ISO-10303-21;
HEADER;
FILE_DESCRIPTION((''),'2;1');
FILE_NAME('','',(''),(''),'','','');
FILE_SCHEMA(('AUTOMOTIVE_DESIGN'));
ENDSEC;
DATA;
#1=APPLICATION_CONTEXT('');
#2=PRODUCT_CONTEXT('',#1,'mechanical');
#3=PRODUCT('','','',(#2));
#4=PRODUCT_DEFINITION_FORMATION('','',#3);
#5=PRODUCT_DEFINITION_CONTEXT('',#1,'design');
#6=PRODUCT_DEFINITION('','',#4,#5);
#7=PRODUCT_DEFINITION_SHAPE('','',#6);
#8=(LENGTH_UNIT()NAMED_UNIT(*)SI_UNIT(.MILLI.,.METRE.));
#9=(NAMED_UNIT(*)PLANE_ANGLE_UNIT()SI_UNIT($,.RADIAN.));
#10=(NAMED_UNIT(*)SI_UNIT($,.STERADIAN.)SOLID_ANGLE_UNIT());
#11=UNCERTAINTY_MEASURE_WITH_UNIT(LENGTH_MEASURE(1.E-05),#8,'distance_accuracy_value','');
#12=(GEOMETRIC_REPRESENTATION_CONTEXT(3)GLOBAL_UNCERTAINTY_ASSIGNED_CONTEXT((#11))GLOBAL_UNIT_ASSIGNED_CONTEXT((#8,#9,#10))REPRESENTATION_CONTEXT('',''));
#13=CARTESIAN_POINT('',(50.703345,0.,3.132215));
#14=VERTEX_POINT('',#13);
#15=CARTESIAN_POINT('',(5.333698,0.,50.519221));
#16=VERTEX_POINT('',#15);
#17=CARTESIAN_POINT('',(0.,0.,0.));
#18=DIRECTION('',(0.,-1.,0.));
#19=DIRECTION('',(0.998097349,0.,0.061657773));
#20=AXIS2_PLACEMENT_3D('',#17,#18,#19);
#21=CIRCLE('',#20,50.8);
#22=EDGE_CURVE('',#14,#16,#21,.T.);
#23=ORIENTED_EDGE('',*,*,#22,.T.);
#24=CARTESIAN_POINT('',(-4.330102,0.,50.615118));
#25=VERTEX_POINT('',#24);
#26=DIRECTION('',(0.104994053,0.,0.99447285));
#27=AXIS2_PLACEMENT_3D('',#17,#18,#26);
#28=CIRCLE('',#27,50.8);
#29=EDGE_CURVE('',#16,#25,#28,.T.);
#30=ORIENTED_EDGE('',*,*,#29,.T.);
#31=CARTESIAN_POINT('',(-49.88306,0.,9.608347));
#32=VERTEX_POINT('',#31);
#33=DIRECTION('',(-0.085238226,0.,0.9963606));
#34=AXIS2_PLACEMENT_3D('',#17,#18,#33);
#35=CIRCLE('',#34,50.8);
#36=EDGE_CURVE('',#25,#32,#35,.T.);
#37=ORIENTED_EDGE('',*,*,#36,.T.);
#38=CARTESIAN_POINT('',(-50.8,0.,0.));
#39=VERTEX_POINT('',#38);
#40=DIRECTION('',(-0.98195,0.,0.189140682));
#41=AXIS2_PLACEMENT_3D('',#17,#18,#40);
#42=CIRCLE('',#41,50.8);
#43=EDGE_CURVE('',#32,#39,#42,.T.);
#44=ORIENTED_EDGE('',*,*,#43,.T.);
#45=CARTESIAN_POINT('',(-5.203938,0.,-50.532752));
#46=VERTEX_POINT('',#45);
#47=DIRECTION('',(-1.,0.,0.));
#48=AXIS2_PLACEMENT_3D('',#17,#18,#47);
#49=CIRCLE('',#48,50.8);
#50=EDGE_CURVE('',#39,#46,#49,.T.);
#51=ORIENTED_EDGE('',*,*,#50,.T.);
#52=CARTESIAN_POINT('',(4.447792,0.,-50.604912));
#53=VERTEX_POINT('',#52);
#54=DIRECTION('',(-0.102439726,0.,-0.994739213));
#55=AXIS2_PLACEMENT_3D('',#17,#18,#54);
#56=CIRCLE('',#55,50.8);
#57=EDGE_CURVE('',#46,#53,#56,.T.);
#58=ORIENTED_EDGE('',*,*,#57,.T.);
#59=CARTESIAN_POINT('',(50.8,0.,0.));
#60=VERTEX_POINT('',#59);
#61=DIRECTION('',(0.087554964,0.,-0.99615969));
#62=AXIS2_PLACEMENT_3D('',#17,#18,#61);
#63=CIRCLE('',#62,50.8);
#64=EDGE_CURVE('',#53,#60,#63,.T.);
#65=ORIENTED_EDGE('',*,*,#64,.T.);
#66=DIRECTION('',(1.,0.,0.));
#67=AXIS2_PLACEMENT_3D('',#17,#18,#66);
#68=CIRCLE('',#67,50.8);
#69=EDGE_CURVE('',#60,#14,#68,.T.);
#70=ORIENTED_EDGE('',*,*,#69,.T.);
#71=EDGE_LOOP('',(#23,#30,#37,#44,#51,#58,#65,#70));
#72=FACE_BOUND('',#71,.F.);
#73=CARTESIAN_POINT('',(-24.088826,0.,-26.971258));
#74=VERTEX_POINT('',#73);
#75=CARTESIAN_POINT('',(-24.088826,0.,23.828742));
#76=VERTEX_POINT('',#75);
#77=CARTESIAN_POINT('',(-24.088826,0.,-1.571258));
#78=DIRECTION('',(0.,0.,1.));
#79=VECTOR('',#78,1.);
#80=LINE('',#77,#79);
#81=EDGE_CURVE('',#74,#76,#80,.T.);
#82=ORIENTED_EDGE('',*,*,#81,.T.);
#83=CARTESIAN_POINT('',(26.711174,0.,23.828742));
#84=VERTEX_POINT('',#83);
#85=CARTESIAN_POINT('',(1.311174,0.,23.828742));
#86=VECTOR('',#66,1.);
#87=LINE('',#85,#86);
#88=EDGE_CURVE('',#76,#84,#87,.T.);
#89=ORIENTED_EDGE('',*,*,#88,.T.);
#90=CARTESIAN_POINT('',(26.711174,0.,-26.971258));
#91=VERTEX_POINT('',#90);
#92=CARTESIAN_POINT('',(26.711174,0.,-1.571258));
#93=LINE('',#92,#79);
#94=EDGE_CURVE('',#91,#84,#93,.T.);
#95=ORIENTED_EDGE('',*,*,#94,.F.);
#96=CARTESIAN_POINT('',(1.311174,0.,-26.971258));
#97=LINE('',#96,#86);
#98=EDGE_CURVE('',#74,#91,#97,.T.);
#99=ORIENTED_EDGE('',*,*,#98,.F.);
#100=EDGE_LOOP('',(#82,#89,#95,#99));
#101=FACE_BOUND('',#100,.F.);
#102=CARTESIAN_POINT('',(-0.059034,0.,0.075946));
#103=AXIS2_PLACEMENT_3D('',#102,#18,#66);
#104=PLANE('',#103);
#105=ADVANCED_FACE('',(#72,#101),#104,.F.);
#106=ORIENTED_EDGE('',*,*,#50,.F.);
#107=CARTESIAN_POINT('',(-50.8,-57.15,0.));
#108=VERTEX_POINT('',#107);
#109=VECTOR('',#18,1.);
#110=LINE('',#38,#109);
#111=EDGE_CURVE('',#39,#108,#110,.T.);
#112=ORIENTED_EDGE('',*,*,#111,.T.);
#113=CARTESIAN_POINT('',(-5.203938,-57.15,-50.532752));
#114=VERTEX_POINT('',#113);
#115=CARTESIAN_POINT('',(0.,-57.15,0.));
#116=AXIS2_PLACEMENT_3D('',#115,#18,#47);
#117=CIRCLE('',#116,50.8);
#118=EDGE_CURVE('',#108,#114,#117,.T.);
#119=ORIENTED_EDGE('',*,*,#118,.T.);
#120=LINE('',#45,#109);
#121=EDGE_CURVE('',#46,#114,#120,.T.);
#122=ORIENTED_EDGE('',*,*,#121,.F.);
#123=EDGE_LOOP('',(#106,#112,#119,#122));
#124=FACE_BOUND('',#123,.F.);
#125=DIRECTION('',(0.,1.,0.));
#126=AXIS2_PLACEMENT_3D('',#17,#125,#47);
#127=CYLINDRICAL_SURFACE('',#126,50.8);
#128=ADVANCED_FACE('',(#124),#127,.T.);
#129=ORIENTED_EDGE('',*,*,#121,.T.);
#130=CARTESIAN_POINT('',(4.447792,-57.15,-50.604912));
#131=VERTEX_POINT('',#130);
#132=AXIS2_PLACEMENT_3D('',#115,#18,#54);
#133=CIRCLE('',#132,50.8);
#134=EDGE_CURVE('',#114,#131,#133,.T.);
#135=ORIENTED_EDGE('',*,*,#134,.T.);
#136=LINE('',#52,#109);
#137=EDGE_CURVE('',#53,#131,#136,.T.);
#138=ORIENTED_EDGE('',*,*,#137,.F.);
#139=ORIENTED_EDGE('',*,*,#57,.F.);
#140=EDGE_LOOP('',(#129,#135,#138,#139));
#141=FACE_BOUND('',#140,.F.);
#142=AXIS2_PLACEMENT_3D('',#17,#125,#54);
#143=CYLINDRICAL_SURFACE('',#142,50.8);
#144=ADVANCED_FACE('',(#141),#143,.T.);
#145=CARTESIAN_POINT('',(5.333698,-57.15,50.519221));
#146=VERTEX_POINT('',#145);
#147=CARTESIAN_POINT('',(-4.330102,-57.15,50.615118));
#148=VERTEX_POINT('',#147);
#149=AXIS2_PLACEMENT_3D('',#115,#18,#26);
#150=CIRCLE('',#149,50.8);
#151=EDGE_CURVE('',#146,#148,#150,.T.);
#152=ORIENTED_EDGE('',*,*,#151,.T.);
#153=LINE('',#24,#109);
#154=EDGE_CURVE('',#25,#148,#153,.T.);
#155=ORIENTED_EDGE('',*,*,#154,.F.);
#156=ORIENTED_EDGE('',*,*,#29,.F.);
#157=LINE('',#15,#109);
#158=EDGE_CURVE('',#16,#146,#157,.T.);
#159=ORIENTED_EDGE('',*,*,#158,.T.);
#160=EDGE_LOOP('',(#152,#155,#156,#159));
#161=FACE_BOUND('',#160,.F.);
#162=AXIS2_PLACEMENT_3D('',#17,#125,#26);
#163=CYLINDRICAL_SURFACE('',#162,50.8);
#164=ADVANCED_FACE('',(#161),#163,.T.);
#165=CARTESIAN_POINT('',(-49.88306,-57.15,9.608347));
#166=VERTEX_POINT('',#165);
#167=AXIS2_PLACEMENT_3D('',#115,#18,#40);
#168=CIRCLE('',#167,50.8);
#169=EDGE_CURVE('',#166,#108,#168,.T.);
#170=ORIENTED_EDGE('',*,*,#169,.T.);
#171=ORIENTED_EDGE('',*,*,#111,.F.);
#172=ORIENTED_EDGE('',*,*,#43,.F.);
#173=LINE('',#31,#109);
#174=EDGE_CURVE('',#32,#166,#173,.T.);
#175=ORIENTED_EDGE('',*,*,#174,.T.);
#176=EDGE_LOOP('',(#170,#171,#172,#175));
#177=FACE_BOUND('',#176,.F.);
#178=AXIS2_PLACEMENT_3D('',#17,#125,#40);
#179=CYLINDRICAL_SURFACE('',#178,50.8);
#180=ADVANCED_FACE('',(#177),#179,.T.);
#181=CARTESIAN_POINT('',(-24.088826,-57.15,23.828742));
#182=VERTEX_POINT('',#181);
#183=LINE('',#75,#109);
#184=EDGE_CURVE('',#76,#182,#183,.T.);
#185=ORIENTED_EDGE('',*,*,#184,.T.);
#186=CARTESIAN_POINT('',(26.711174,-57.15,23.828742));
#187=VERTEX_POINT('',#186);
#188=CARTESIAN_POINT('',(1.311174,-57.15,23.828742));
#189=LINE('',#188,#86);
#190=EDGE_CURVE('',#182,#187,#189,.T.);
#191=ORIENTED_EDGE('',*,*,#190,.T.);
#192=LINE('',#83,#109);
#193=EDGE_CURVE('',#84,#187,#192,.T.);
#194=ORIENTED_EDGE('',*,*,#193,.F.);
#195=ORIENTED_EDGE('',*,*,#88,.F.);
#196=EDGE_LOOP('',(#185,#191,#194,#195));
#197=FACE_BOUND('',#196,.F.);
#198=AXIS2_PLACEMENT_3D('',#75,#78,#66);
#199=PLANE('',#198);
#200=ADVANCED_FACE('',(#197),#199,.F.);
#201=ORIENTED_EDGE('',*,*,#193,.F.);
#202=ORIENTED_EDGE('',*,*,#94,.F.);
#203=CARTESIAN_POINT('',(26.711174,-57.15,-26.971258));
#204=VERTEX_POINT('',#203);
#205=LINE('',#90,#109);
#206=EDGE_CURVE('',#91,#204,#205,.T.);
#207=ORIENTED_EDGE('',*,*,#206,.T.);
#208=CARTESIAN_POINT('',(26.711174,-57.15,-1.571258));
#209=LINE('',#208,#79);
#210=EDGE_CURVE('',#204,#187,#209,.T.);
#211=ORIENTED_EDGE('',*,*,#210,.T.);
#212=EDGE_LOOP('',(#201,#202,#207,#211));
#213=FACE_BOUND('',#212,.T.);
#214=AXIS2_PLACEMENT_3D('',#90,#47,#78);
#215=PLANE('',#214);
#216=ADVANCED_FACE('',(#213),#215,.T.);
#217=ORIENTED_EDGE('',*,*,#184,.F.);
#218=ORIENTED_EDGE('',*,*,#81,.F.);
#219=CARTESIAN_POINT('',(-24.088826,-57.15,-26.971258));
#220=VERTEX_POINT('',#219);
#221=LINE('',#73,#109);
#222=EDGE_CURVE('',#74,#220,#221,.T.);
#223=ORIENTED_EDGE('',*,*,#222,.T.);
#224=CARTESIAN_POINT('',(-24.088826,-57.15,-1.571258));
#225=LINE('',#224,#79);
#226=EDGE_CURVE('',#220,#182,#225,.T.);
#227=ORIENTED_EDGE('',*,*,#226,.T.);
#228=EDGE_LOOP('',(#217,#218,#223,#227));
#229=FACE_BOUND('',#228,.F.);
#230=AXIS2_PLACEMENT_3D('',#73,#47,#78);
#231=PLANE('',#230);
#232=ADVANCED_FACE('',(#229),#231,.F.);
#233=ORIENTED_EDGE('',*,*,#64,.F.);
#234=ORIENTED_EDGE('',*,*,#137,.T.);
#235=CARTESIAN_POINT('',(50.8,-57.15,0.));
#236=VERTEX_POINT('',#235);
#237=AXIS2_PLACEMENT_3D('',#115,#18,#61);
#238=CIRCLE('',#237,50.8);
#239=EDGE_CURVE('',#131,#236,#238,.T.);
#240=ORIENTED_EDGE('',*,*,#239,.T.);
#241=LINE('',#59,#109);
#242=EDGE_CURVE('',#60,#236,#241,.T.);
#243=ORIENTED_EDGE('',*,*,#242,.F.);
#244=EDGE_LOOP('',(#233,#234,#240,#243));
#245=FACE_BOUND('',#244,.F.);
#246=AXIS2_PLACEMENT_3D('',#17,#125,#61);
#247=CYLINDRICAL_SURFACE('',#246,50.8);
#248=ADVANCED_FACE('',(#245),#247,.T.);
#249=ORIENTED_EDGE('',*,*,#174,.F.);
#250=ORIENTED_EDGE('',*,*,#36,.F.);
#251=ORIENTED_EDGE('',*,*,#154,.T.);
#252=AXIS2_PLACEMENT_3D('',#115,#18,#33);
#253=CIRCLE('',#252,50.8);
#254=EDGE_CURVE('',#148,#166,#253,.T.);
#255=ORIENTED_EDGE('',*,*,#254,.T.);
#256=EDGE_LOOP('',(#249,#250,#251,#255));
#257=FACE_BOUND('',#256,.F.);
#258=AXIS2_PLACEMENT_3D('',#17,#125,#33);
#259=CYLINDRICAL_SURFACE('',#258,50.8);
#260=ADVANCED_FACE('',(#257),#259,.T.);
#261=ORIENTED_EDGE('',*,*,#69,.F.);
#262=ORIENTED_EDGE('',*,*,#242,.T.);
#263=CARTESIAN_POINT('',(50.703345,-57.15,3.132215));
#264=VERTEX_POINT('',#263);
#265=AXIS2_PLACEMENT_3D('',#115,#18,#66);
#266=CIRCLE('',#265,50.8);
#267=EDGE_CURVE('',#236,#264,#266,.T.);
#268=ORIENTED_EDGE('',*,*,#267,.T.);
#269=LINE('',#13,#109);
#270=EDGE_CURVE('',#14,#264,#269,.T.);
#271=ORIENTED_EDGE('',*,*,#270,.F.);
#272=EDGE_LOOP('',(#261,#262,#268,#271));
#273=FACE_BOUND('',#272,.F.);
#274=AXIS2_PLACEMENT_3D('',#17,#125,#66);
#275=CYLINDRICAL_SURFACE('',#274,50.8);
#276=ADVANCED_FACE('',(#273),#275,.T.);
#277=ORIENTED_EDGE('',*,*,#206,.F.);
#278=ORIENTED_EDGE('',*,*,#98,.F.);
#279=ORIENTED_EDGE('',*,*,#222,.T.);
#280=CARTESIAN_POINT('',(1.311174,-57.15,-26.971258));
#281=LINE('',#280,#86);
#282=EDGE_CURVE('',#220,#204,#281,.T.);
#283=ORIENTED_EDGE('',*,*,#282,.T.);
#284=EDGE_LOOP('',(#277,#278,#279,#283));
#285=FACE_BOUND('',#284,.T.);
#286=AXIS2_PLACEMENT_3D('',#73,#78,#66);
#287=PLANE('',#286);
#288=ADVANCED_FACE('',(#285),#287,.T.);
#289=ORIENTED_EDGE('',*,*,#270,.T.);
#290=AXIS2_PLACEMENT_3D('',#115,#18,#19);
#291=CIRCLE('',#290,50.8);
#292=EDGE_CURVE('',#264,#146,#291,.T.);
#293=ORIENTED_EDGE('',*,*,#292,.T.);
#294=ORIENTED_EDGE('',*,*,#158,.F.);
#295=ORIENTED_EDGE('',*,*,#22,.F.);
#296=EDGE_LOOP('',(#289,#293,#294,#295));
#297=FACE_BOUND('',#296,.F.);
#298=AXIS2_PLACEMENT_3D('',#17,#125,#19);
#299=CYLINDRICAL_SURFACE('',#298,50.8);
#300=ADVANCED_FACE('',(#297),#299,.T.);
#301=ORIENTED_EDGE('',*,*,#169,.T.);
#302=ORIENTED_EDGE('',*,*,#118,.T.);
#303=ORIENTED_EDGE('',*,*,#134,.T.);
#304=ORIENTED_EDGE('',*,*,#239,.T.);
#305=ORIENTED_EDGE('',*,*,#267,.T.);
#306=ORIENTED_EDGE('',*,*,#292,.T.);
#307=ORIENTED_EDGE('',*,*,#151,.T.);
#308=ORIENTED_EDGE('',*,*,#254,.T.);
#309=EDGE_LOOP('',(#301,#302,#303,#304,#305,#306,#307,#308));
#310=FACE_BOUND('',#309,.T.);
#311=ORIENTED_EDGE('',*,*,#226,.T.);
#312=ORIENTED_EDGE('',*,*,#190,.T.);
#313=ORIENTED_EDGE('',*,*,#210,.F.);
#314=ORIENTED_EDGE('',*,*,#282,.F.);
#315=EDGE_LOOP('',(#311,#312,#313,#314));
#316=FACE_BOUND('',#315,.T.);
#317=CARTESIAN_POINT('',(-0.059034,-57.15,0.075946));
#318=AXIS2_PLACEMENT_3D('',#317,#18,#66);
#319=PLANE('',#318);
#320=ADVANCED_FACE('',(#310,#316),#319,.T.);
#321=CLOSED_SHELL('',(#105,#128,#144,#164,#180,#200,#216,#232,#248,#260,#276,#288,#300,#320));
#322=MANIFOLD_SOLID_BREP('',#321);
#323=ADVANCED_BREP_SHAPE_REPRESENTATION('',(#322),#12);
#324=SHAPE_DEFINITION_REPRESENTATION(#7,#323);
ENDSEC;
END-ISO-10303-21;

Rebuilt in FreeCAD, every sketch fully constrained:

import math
import FreeCAD as App
import Part
import Sketcher
Q = App.Units.Quantity

doc = App.newDocument("Part")
body = doc.addObject("PartDesign::Body", "Body")

# Sketch on XZ plane
sketch1 = body.newObject("Sketcher::SketchObject", "Sketch")
sketch1.AttachmentSupport = (doc.getObject("XZ_Plane"), [""])
sketch1.MapMode = "FlatFace"
sketch1.addGeometry(Part.ArcOfCircle(Part.Circle(App.Vector(0, 0, 0), App.Vector(0, 0, 1), 50.8), math.radians(0), math.radians(3.534972)), False)
sketch1.addGeometry(Part.ArcOfCircle(Part.Circle(App.Vector(0, 0, 0), App.Vector(0, 0, 1), 50.8), math.radians(3.534972), math.radians(83.973176)), False)
sketch1.addGeometry(Part.ArcOfCircle(Part.Circle(App.Vector(0, 0, 0), App.Vector(0, 0, 1), 50.8), math.radians(83.973176), math.radians(94.889724)), False)
sketch1.addGeometry(Part.ArcOfCircle(Part.Circle(App.Vector(0, 0, 0), App.Vector(0, 0, 1), 50.8), math.radians(94.889724), math.radians(169.09736)), False)
sketch1.addGeometry(Part.ArcOfCircle(Part.Circle(App.Vector(0, 0, 0), App.Vector(0, 0, 1), 50.8), math.radians(169.09736), math.radians(180)), False)
sketch1.addGeometry(Part.ArcOfCircle(Part.Circle(App.Vector(0, 0, 0), App.Vector(0, 0, 1), 50.8), math.radians(180), math.radians(264.120322)), False)
sketch1.addGeometry(Part.ArcOfCircle(Part.Circle(App.Vector(0, 0, 0), App.Vector(0, 0, 1), 50.8), math.radians(-95.879678), math.radians(-84.977039)), False)
sketch1.addGeometry(Part.ArcOfCircle(Part.Circle(App.Vector(0, 0, 0), App.Vector(0, 0, 1), 50.8), math.radians(-84.977039), math.radians(0)), False)
sketch1.addGeometry(Part.LineSegment(App.Vector(26.711174, -26.971258, 0), App.Vector(-24.088826, -26.971258, 0)), False)
sketch1.addGeometry(Part.LineSegment(App.Vector(-24.088826, -26.971258, 0), App.Vector(-24.088826, 23.828742, 0)), False)
sketch1.addGeometry(Part.LineSegment(App.Vector(-24.088826, 23.828742, 0), App.Vector(26.711174, 23.828742, 0)), False)
sketch1.addGeometry(Part.LineSegment(App.Vector(26.711174, 23.828742, 0), App.Vector(26.711174, -26.971258, 0)), False)
sketch1.addConstraint(Sketcher.Constraint("Tangent", 0, 2, 1, 1))
sketch1.addConstraint(Sketcher.Constraint("Tangent", 1, 2, 2, 1))
sketch1.addConstraint(Sketcher.Constraint("Tangent", 2, 2, 3, 1))
sketch1.addConstraint(Sketcher.Constraint("Tangent", 3, 2, 4, 1))
sketch1.addConstraint(Sketcher.Constraint("Tangent", 4, 2, 5, 1))
sketch1.addConstraint(Sketcher.Constraint("Tangent", 5, 2, 6, 1))
sketch1.addConstraint(Sketcher.Constraint("Tangent", 6, 2, 7, 1))
sketch1.addConstraint(Sketcher.Constraint("Tangent", 7, 2, 0, 1))
sketch1.addConstraint(Sketcher.Constraint("Coincident", 8, 2, 9, 1))
sketch1.addConstraint(Sketcher.Constraint("Coincident", 9, 2, 10, 1))
sketch1.addConstraint(Sketcher.Constraint("Coincident", 10, 2, 11, 1))
sketch1.addConstraint(Sketcher.Constraint("Coincident", 11, 2, 8, 1))
sketch1.addConstraint(Sketcher.Constraint("Horizontal", 8))
sketch1.addConstraint(Sketcher.Constraint("Vertical", 9))
sketch1.addConstraint(Sketcher.Constraint("Horizontal", 10))
sketch1.addConstraint(Sketcher.Constraint("Vertical", 11))
sketch1.addConstraint(Sketcher.Constraint("Coincident", 0, 3, -1, 1))
sketch1.addConstraint(Sketcher.Constraint("Coincident", 2, 3, -1, 1))
sketch1.addConstraint(Sketcher.Constraint("Coincident", 4, 3, -1, 1))
sketch1.addConstraint(Sketcher.Constraint("Equal", 4, 5))
sketch1.addConstraint(Sketcher.Constraint("PointOnObject", 4, 2, -1))
sketch1.addConstraint(Sketcher.Constraint("PointOnObject", 7, 2, -1))
sketch1.addConstraint(Sketcher.Constraint("Equal", 10, 9))
sketch1.addConstraint(Sketcher.Constraint("Radius", 0, Q("2 in")))
sketch1.addConstraint(Sketcher.Constraint("DistanceX", 8, 2, 8, 1, Q("2 in")))
sketch1.addConstraint(Sketcher.Constraint("DistanceX", 3, 2, -1, 1, Q("1.9639 in")))
sketch1.addConstraint(Sketcher.Constraint("DistanceX", 2, 2, -1, 1, 4.330102))
sketch1.addConstraint(Sketcher.Constraint("DistanceX", 2, 2, 1, 2, 9.6638))
sketch1.addConstraint(Sketcher.Constraint("DistanceX", 5, 2, -1, 1, 5.203938))
sketch1.addConstraint(Sketcher.Constraint("DistanceY", 8, 2, -1, 1, 26.971258))
sketch1.addConstraint(Sketcher.Constraint("DistanceX", 5, 2, 6, 2, 9.65173))
sketch1.addConstraint(Sketcher.Constraint("DistanceX", 10, 2, 0, 2, 23.992171))
sketch1.addConstraint(Sketcher.Constraint("DistanceX", 6, 2, 11, 2, 22.263382))
pad1 = body.newObject("PartDesign::Pad", "Pad")
pad1.Profile = sketch1
pad1.Length = Q("2.25 in")

doc.recompute()
